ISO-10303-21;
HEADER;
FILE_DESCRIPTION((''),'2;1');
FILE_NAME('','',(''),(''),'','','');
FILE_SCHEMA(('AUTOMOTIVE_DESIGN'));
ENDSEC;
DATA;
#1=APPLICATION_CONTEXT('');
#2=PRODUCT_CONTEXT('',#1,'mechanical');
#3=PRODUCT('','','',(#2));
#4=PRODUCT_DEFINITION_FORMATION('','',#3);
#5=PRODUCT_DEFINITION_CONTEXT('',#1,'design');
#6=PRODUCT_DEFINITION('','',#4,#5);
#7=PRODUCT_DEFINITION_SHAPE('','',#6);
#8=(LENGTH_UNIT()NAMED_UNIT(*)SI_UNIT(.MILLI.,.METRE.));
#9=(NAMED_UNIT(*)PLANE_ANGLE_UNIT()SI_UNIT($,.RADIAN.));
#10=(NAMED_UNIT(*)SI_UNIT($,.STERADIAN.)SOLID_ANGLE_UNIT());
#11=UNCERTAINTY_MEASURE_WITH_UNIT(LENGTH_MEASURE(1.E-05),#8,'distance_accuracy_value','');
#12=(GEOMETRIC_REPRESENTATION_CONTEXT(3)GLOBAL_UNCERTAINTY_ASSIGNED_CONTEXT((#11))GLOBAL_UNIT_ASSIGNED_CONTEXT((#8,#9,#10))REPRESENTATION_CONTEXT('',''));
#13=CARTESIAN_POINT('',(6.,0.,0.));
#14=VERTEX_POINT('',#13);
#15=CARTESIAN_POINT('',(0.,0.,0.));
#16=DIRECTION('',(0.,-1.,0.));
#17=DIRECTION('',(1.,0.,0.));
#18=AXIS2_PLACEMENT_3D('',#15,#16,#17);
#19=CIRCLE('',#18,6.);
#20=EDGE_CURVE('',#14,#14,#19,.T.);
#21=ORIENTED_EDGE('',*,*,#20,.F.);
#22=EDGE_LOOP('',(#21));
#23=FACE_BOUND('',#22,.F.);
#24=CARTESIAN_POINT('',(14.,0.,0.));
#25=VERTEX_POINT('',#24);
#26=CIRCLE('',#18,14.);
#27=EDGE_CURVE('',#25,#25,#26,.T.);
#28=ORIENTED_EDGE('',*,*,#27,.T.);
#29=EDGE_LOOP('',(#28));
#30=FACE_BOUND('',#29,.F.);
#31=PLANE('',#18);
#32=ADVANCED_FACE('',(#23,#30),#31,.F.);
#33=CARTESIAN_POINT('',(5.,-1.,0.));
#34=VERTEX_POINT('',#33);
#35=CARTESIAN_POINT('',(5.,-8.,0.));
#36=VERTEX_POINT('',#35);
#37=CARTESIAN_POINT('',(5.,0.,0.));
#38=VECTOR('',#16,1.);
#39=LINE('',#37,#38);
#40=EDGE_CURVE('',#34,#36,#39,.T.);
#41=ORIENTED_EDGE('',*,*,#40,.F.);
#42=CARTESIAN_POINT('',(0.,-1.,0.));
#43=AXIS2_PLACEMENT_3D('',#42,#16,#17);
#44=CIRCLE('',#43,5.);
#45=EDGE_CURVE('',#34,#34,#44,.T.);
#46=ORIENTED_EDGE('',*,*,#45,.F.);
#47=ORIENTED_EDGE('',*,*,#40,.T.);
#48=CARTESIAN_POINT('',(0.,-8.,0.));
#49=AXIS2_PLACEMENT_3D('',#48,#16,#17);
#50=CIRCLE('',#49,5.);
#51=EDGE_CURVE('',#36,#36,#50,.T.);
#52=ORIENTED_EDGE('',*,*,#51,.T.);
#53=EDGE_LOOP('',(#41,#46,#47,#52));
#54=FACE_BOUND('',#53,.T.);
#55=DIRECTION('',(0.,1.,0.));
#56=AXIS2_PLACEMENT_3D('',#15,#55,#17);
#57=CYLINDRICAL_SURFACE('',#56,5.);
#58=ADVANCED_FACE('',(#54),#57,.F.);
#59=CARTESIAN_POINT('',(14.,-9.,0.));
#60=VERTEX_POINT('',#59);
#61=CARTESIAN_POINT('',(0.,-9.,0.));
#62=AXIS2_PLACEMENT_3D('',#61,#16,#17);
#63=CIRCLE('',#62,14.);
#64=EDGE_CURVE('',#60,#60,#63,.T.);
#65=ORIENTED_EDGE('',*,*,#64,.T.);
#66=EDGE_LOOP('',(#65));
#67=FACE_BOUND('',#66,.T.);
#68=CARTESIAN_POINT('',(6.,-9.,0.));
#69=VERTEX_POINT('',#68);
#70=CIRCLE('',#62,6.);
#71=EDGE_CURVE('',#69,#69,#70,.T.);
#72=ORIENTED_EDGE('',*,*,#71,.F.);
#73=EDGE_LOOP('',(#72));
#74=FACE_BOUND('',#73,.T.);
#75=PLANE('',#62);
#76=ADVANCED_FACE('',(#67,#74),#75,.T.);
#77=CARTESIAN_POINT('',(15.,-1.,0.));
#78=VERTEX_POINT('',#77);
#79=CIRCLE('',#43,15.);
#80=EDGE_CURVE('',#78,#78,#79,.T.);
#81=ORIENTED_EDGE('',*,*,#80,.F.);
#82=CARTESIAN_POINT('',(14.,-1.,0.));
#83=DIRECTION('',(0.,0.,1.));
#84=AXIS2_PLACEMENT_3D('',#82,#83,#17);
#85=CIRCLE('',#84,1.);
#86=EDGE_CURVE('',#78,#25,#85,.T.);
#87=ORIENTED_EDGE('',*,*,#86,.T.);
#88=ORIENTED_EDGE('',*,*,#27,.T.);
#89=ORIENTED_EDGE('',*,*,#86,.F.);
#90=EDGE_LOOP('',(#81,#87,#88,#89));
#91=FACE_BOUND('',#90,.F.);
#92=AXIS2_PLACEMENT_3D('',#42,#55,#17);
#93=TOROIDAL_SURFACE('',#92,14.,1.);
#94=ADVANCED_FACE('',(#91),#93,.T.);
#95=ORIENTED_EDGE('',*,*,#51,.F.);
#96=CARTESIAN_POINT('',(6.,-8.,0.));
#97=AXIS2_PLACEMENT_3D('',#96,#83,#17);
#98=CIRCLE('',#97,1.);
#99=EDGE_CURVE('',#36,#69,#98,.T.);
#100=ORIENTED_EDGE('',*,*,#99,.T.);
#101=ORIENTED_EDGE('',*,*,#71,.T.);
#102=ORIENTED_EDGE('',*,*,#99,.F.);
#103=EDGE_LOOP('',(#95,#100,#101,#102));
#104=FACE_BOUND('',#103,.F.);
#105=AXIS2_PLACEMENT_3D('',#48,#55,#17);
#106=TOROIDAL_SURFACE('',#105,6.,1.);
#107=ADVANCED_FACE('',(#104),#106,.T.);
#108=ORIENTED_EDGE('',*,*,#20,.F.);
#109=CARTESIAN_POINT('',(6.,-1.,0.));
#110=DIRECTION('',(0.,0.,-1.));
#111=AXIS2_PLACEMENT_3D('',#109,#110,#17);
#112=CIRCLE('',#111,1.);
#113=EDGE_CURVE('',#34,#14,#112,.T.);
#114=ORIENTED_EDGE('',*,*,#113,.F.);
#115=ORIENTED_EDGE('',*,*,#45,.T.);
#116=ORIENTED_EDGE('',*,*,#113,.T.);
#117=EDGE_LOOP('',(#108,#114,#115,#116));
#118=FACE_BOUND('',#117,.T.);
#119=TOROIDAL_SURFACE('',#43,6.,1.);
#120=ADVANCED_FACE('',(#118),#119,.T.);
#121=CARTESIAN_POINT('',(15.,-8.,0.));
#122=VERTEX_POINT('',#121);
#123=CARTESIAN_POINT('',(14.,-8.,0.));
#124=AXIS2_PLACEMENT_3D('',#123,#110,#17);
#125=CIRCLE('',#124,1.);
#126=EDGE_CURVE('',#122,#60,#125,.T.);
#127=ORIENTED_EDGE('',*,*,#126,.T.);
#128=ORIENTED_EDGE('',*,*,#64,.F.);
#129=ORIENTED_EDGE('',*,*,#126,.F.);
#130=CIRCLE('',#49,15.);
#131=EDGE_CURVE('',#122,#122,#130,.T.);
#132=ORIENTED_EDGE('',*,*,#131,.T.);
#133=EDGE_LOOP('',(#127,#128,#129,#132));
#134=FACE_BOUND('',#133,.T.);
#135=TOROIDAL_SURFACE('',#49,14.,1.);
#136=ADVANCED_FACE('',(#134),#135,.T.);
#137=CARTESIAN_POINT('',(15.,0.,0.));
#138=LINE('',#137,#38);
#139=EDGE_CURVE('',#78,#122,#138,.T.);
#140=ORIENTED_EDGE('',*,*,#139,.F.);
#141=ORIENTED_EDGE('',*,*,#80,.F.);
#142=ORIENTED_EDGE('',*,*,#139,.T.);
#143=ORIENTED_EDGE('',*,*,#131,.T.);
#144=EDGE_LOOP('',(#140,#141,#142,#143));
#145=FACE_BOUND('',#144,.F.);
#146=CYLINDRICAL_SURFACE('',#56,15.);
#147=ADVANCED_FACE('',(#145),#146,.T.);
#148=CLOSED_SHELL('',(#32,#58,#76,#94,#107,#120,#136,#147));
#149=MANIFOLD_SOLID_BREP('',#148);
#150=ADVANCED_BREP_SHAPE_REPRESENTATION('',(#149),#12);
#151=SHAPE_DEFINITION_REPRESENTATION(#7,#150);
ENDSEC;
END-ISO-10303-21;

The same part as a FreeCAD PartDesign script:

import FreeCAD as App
import Part
import Sketcher

doc = App.newDocument("Part")
body = doc.addObject("PartDesign::Body", "Body")

# Sketch on XZ plane
sketch1 = doc.addObject("Sketcher::SketchObject", "Sketch")
body.addObject(sketch1)
sketch1.AttachmentSupport = (doc.XZ_Plane, [""])
sketch1.MapMode = "FlatFace"
sketch1.addGeometry(Part.Circle(App.Vector(0, 0, 0), App.Vector(0, 0, 1), 15), False)
sketch1.addGeometry(Part.Circle(App.Vector(0, 0, 0), App.Vector(0, 0, 1), 5), False)
sketch1.addConstraint(Sketcher.Constraint("Coincident", 0, 3, -1, 1))
sketch1.addConstraint(Sketcher.Constraint("Coincident", 1, 3, -1, 1))
sketch1.addConstraint(Sketcher.Constraint("Diameter", 0, 30.0))
sketch1.addConstraint(Sketcher.Constraint("Diameter", 1, 10.0))
pad1 = doc.addObject("PartDesign::Pad", "Pad")
body.addObject(pad1)
pad1.Profile = sketch1
pad1.Length = 9
doc.recompute()

fillet = doc.addObject("PartDesign::Fillet", "Fillet")
body.addObject(fillet)
fillet.Base = (pad1, ["Edge1"])
fillet.UseAllEdges = True
fillet.Radius = 1

doc.recompute()
